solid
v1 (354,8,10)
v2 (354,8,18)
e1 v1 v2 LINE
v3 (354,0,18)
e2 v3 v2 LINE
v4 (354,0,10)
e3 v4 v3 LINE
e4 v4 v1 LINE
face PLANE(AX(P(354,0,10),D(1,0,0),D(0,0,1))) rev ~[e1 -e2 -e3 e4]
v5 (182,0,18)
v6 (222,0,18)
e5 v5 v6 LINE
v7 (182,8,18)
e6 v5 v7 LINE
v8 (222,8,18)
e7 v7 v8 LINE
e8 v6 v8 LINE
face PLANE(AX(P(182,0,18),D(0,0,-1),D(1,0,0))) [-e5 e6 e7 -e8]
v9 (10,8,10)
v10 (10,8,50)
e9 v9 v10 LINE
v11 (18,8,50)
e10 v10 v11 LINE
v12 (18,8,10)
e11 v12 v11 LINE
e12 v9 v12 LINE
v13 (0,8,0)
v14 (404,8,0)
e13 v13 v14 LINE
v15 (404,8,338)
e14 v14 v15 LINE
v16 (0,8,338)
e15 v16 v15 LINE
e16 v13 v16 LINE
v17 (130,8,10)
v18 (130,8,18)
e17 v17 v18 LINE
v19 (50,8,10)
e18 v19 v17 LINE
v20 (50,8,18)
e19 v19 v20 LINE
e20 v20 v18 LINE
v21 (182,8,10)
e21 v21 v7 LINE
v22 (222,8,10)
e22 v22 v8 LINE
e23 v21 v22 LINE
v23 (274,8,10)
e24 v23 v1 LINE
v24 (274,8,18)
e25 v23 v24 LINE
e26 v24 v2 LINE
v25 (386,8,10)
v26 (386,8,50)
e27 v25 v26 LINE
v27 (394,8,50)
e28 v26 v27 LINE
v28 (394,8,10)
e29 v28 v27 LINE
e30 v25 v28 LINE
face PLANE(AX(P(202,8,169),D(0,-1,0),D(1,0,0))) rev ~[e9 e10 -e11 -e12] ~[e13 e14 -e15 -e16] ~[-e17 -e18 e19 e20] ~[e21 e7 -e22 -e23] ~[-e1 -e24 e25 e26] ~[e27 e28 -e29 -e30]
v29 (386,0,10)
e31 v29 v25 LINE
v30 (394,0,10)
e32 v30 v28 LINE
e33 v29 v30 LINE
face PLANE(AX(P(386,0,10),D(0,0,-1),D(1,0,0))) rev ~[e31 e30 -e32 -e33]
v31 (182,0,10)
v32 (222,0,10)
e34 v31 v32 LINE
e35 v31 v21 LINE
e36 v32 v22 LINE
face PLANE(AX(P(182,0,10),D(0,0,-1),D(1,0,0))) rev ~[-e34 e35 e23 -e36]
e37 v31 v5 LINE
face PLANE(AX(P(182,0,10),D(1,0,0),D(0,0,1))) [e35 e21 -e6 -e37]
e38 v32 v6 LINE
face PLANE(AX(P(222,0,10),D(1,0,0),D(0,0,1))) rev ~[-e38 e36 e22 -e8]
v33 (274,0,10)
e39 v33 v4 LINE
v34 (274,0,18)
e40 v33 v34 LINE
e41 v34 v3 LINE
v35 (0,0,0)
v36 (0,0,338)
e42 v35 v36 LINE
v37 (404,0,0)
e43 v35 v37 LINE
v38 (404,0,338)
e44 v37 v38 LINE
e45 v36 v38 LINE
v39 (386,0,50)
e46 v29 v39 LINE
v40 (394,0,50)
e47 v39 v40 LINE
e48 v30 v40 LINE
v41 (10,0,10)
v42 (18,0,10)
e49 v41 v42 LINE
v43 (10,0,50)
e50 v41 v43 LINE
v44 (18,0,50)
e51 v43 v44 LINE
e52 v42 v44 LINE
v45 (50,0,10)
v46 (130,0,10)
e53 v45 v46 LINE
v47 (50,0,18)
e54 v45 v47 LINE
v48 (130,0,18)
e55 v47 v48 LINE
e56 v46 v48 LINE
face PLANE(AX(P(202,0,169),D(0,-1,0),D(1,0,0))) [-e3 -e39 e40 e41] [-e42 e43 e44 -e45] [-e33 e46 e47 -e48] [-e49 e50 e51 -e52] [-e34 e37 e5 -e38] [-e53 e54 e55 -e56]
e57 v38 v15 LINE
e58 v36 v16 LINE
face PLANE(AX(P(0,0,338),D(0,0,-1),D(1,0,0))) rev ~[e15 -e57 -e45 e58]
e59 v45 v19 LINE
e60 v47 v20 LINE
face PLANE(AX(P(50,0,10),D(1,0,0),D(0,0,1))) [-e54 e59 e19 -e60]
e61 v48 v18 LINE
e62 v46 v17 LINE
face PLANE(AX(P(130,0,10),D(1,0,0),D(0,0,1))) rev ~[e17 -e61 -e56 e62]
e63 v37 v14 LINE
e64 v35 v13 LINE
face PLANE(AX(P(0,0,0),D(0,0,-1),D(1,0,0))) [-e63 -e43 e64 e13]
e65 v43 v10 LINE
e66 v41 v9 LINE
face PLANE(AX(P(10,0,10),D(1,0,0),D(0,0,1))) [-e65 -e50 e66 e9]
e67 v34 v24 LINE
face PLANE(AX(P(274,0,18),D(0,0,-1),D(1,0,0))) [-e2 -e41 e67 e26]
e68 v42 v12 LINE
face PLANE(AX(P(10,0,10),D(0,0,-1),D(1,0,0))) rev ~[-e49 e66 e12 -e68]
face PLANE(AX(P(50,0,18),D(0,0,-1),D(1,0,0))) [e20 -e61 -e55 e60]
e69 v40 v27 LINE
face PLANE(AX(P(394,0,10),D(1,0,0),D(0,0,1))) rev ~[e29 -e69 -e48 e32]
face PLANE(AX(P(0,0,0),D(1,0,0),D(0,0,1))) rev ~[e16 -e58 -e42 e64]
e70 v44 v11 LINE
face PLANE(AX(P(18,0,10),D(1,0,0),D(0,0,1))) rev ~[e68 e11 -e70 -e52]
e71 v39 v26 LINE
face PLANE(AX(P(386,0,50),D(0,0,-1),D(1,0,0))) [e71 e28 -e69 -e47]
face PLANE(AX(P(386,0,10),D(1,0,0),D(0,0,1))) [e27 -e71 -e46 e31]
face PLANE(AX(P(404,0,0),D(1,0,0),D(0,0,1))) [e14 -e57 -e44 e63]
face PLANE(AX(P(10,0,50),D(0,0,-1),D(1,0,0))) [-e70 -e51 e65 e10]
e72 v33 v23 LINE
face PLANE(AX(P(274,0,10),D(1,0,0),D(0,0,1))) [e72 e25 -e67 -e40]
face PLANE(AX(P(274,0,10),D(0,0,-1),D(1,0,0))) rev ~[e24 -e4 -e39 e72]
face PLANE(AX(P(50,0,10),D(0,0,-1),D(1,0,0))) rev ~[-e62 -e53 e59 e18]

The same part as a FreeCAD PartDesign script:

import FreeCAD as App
import Part
import Sketcher
from FreeCAD import Vector
Q = App.Units.Quantity

doc = App.newDocument("Part")
body = doc.addObject("PartDesign::Body", "Body")

sketch1 = doc.addObject("Sketcher::SketchObject", "Sketch")
body.addObject(sketch1)
sketch1.AttachmentSupport = (doc.XZ_Plane, [""])
sketch1.MapMode = "FlatFace"
sketch1.addGeometry([
    Part.LineSegment(Vector(0, 338, 0), Vector(0, 0, 0)),
    Part.LineSegment(Vector(0, 0, 0), Vector(404, 0, 0)),
    Part.LineSegment(Vector(404, 0, 0), Vector(404, 338, 0)),
    Part.LineSegment(Vector(404, 338, 0), Vector(0, 338, 0)),
    Part.LineSegment(Vector(130, 10, 0), Vector(50, 10, 0)),
    Part.LineSegment(Vector(50, 10, 0), Vector(50, 18, 0)),
    Part.LineSegment(Vector(50, 18, 0), Vector(130, 18, 0)),
    Part.LineSegment(Vector(130, 18, 0), Vector(130, 10, 0)),
    Part.LineSegment(Vector(222, 10, 0), Vector(182, 10, 0)),
    Part.LineSegment(Vector(182, 10, 0), Vector(182, 18, 0)),
    Part.LineSegment(Vector(182, 18, 0), Vector(222, 18, 0)),
    Part.LineSegment(Vector(222, 18, 0), Vector(222, 10, 0)),
    Part.LineSegment(Vector(354, 10, 0), Vector(274, 10, 0)),
    Part.LineSegment(Vector(274, 10, 0), Vector(274, 18, 0)),
    Part.LineSegment(Vector(274, 18, 0), Vector(354, 18, 0)),
    Part.LineSegment(Vector(354, 18, 0), Vector(354, 10, 0)),
    Part.LineSegment(Vector(18, 10, 0), Vector(10, 10, 0)),
    Part.LineSegment(Vector(10, 10, 0), Vector(10, 50, 0)),
    Part.LineSegment(Vector(10, 50, 0), Vector(18, 50, 0)),
    Part.LineSegment(Vector(18, 50, 0), Vector(18, 10, 0)),
    Part.LineSegment(Vector(394, 10, 0), Vector(386, 10, 0)),
    Part.LineSegment(Vector(386, 10, 0), Vector(386, 50, 0)),
    Part.LineSegment(Vector(386, 50, 0), Vector(394, 50, 0)),
    Part.LineSegment(Vector(394, 50, 0), Vector(394, 10, 0)),
], False)
sketch1.addConstraint([
    Sketcher.Constraint("Coincident", 0, 2, 1, 1),
    Sketcher.Constraint("Coincident", 1, 2, 2, 1),
    Sketcher.Constraint("Coincident", 2, 2, 3, 1),
    Sketcher.Constraint("Coincident", 3, 2, 0, 1),
    Sketcher.Constraint("Coincident", 4, 2, 5, 1),
    Sketcher.Constraint("Coincident", 5, 2, 6, 1),
    Sketcher.Constraint("Coincident", 6, 2, 7, 1),
    Sketcher.Constraint("Coincident", 7, 2, 4, 1),
    Sketcher.Constraint("Coincident", 8, 2, 9, 1),
    Sketcher.Constraint("Coincident", 9, 2, 10, 1),
    Sketcher.Constraint("Coincident", 10, 2, 11, 1),
    Sketcher.Constraint("Coincident", 11, 2, 8, 1),
    Sketcher.Constraint("Coincident", 12, 2, 13, 1),
    Sketcher.Constraint("Coincident", 13, 2, 14, 1),
    Sketcher.Constraint("Coincident", 14, 2, 15, 1),
    Sketcher.Constraint("Coincident", 15, 2, 12, 1),
    Sketcher.Constraint("Coincident", 16, 2, 17, 1),
    Sketcher.Constraint("Coincident", 17, 2, 18, 1),
    Sketcher.Constraint("Coincident", 18, 2, 19, 1),
    Sketcher.Constraint("Coincident", 19, 2, 16, 1),
    Sketcher.Constraint("Coincident", 20, 2, 21, 1),
    Sketcher.Constraint("Coincident", 21, 2, 22, 1),
    Sketcher.Constraint("Coincident", 22, 2, 23, 1),
    Sketcher.Constraint("Coincident", 23, 2, 20, 1),
    Sketcher.Constraint("Vertical", 0),
    Sketcher.Constraint("Horizontal", 1),
    Sketcher.Constraint("Vertical", 2),
    Sketcher.Constraint("Horizontal", 3),
    Sketcher.Constraint("Horizontal", 4),
    Sketcher.Constraint("Vertical", 5),
    Sketcher.Constraint("Horizontal", 6),
    Sketcher.Constraint("Vertical", 7),
    Sketcher.Constraint("Horizontal", 8),
    Sketcher.Constraint("Vertical", 9),
    Sketcher.Constraint("Horizontal", 10),
    Sketcher.Constraint("Vertical", 11),
    Sketcher.Constraint("Horizontal", 12),
    Sketcher.Constraint("Vertical", 13),
    Sketcher.Constraint("Horizontal", 14),
    Sketcher.Constraint("Vertical", 15),
    Sketcher.Constraint("Horizontal", 16),
    Sketcher.Constraint("Vertical", 17),
    Sketcher.Constraint("Horizontal", 18),
    Sketcher.Constraint("Vertical", 19),
    Sketcher.Constraint("Horizontal", 20),
    Sketcher.Constraint("Vertical", 21),
    Sketcher.Constraint("Horizontal", 22),
    Sketcher.Constraint("Vertical", 23),
    Sketcher.Constraint("Coincident", 0, 2, -1, 1),
    Sketcher.Constraint("Horizontal", 7, 2, 8, 2),
    Sketcher.Constraint("Horizontal", 6, 2, 9, 2),
    Sketcher.Constraint("Horizontal", 11, 2, 12, 2),
    Sketcher.Constraint("Horizontal", 10, 2, 13, 2),
    Sketcher.Constraint("Horizontal", 15, 2, 16, 2),
    Sketcher.Constraint("Horizontal", 19, 2, 20, 2),
    Sketcher.Constraint("Horizontal", 18, 2, 21, 2),
    Sketcher.Constraint("Equal", 6, 12),
    Sketcher.Constraint("Equal", 18, 20),
    Sketcher.Constraint("Equal", 22, 5),
    Sketcher.Constraint("Equal", 10, 17),
    Sketcher.Constraint("DistanceX", 1, 1, 1, 2, Q("404 mm")),
    Sketcher.Constraint("DistanceX", 4, 2, 4, 1, Q("80 mm")),
    Sketcher.Constraint("DistanceX", 8, 2, 8, 1, Q("40 mm")),
    Sketcher.Constraint("DistanceX", 16, 2, 16, 1, Q("8 mm")),
    Sketcher.Constraint("DistanceY", 0, 2, 0, 1, Q("338 mm")),
    Sketcher.Constraint("DistanceX", -1, 1, 4, 2, Q("50 mm")),
    Sketcher.Constraint("DistanceY", -1, 1, 4, 2, Q("10 mm")),
    Sketcher.Constraint("DistanceX", -1, 1, 8, 2, Q("182 mm")),
    Sketcher.Constraint("DistanceX", -1, 1, 12, 2, Q("274 mm")),
    Sketcher.Constraint("DistanceX", -1, 1, 16, 2, Q("10 mm")),
    Sketcher.Constraint("DistanceX", -1, 1, 20, 2, Q("386 mm")),
])
pad1 = doc.addObject("PartDesign::Pad", "Pad")
body.addObject(pad1)
pad1.Profile = sketch1
pad1.Length = 8
pad1.Reversed = True

doc.recompute()
